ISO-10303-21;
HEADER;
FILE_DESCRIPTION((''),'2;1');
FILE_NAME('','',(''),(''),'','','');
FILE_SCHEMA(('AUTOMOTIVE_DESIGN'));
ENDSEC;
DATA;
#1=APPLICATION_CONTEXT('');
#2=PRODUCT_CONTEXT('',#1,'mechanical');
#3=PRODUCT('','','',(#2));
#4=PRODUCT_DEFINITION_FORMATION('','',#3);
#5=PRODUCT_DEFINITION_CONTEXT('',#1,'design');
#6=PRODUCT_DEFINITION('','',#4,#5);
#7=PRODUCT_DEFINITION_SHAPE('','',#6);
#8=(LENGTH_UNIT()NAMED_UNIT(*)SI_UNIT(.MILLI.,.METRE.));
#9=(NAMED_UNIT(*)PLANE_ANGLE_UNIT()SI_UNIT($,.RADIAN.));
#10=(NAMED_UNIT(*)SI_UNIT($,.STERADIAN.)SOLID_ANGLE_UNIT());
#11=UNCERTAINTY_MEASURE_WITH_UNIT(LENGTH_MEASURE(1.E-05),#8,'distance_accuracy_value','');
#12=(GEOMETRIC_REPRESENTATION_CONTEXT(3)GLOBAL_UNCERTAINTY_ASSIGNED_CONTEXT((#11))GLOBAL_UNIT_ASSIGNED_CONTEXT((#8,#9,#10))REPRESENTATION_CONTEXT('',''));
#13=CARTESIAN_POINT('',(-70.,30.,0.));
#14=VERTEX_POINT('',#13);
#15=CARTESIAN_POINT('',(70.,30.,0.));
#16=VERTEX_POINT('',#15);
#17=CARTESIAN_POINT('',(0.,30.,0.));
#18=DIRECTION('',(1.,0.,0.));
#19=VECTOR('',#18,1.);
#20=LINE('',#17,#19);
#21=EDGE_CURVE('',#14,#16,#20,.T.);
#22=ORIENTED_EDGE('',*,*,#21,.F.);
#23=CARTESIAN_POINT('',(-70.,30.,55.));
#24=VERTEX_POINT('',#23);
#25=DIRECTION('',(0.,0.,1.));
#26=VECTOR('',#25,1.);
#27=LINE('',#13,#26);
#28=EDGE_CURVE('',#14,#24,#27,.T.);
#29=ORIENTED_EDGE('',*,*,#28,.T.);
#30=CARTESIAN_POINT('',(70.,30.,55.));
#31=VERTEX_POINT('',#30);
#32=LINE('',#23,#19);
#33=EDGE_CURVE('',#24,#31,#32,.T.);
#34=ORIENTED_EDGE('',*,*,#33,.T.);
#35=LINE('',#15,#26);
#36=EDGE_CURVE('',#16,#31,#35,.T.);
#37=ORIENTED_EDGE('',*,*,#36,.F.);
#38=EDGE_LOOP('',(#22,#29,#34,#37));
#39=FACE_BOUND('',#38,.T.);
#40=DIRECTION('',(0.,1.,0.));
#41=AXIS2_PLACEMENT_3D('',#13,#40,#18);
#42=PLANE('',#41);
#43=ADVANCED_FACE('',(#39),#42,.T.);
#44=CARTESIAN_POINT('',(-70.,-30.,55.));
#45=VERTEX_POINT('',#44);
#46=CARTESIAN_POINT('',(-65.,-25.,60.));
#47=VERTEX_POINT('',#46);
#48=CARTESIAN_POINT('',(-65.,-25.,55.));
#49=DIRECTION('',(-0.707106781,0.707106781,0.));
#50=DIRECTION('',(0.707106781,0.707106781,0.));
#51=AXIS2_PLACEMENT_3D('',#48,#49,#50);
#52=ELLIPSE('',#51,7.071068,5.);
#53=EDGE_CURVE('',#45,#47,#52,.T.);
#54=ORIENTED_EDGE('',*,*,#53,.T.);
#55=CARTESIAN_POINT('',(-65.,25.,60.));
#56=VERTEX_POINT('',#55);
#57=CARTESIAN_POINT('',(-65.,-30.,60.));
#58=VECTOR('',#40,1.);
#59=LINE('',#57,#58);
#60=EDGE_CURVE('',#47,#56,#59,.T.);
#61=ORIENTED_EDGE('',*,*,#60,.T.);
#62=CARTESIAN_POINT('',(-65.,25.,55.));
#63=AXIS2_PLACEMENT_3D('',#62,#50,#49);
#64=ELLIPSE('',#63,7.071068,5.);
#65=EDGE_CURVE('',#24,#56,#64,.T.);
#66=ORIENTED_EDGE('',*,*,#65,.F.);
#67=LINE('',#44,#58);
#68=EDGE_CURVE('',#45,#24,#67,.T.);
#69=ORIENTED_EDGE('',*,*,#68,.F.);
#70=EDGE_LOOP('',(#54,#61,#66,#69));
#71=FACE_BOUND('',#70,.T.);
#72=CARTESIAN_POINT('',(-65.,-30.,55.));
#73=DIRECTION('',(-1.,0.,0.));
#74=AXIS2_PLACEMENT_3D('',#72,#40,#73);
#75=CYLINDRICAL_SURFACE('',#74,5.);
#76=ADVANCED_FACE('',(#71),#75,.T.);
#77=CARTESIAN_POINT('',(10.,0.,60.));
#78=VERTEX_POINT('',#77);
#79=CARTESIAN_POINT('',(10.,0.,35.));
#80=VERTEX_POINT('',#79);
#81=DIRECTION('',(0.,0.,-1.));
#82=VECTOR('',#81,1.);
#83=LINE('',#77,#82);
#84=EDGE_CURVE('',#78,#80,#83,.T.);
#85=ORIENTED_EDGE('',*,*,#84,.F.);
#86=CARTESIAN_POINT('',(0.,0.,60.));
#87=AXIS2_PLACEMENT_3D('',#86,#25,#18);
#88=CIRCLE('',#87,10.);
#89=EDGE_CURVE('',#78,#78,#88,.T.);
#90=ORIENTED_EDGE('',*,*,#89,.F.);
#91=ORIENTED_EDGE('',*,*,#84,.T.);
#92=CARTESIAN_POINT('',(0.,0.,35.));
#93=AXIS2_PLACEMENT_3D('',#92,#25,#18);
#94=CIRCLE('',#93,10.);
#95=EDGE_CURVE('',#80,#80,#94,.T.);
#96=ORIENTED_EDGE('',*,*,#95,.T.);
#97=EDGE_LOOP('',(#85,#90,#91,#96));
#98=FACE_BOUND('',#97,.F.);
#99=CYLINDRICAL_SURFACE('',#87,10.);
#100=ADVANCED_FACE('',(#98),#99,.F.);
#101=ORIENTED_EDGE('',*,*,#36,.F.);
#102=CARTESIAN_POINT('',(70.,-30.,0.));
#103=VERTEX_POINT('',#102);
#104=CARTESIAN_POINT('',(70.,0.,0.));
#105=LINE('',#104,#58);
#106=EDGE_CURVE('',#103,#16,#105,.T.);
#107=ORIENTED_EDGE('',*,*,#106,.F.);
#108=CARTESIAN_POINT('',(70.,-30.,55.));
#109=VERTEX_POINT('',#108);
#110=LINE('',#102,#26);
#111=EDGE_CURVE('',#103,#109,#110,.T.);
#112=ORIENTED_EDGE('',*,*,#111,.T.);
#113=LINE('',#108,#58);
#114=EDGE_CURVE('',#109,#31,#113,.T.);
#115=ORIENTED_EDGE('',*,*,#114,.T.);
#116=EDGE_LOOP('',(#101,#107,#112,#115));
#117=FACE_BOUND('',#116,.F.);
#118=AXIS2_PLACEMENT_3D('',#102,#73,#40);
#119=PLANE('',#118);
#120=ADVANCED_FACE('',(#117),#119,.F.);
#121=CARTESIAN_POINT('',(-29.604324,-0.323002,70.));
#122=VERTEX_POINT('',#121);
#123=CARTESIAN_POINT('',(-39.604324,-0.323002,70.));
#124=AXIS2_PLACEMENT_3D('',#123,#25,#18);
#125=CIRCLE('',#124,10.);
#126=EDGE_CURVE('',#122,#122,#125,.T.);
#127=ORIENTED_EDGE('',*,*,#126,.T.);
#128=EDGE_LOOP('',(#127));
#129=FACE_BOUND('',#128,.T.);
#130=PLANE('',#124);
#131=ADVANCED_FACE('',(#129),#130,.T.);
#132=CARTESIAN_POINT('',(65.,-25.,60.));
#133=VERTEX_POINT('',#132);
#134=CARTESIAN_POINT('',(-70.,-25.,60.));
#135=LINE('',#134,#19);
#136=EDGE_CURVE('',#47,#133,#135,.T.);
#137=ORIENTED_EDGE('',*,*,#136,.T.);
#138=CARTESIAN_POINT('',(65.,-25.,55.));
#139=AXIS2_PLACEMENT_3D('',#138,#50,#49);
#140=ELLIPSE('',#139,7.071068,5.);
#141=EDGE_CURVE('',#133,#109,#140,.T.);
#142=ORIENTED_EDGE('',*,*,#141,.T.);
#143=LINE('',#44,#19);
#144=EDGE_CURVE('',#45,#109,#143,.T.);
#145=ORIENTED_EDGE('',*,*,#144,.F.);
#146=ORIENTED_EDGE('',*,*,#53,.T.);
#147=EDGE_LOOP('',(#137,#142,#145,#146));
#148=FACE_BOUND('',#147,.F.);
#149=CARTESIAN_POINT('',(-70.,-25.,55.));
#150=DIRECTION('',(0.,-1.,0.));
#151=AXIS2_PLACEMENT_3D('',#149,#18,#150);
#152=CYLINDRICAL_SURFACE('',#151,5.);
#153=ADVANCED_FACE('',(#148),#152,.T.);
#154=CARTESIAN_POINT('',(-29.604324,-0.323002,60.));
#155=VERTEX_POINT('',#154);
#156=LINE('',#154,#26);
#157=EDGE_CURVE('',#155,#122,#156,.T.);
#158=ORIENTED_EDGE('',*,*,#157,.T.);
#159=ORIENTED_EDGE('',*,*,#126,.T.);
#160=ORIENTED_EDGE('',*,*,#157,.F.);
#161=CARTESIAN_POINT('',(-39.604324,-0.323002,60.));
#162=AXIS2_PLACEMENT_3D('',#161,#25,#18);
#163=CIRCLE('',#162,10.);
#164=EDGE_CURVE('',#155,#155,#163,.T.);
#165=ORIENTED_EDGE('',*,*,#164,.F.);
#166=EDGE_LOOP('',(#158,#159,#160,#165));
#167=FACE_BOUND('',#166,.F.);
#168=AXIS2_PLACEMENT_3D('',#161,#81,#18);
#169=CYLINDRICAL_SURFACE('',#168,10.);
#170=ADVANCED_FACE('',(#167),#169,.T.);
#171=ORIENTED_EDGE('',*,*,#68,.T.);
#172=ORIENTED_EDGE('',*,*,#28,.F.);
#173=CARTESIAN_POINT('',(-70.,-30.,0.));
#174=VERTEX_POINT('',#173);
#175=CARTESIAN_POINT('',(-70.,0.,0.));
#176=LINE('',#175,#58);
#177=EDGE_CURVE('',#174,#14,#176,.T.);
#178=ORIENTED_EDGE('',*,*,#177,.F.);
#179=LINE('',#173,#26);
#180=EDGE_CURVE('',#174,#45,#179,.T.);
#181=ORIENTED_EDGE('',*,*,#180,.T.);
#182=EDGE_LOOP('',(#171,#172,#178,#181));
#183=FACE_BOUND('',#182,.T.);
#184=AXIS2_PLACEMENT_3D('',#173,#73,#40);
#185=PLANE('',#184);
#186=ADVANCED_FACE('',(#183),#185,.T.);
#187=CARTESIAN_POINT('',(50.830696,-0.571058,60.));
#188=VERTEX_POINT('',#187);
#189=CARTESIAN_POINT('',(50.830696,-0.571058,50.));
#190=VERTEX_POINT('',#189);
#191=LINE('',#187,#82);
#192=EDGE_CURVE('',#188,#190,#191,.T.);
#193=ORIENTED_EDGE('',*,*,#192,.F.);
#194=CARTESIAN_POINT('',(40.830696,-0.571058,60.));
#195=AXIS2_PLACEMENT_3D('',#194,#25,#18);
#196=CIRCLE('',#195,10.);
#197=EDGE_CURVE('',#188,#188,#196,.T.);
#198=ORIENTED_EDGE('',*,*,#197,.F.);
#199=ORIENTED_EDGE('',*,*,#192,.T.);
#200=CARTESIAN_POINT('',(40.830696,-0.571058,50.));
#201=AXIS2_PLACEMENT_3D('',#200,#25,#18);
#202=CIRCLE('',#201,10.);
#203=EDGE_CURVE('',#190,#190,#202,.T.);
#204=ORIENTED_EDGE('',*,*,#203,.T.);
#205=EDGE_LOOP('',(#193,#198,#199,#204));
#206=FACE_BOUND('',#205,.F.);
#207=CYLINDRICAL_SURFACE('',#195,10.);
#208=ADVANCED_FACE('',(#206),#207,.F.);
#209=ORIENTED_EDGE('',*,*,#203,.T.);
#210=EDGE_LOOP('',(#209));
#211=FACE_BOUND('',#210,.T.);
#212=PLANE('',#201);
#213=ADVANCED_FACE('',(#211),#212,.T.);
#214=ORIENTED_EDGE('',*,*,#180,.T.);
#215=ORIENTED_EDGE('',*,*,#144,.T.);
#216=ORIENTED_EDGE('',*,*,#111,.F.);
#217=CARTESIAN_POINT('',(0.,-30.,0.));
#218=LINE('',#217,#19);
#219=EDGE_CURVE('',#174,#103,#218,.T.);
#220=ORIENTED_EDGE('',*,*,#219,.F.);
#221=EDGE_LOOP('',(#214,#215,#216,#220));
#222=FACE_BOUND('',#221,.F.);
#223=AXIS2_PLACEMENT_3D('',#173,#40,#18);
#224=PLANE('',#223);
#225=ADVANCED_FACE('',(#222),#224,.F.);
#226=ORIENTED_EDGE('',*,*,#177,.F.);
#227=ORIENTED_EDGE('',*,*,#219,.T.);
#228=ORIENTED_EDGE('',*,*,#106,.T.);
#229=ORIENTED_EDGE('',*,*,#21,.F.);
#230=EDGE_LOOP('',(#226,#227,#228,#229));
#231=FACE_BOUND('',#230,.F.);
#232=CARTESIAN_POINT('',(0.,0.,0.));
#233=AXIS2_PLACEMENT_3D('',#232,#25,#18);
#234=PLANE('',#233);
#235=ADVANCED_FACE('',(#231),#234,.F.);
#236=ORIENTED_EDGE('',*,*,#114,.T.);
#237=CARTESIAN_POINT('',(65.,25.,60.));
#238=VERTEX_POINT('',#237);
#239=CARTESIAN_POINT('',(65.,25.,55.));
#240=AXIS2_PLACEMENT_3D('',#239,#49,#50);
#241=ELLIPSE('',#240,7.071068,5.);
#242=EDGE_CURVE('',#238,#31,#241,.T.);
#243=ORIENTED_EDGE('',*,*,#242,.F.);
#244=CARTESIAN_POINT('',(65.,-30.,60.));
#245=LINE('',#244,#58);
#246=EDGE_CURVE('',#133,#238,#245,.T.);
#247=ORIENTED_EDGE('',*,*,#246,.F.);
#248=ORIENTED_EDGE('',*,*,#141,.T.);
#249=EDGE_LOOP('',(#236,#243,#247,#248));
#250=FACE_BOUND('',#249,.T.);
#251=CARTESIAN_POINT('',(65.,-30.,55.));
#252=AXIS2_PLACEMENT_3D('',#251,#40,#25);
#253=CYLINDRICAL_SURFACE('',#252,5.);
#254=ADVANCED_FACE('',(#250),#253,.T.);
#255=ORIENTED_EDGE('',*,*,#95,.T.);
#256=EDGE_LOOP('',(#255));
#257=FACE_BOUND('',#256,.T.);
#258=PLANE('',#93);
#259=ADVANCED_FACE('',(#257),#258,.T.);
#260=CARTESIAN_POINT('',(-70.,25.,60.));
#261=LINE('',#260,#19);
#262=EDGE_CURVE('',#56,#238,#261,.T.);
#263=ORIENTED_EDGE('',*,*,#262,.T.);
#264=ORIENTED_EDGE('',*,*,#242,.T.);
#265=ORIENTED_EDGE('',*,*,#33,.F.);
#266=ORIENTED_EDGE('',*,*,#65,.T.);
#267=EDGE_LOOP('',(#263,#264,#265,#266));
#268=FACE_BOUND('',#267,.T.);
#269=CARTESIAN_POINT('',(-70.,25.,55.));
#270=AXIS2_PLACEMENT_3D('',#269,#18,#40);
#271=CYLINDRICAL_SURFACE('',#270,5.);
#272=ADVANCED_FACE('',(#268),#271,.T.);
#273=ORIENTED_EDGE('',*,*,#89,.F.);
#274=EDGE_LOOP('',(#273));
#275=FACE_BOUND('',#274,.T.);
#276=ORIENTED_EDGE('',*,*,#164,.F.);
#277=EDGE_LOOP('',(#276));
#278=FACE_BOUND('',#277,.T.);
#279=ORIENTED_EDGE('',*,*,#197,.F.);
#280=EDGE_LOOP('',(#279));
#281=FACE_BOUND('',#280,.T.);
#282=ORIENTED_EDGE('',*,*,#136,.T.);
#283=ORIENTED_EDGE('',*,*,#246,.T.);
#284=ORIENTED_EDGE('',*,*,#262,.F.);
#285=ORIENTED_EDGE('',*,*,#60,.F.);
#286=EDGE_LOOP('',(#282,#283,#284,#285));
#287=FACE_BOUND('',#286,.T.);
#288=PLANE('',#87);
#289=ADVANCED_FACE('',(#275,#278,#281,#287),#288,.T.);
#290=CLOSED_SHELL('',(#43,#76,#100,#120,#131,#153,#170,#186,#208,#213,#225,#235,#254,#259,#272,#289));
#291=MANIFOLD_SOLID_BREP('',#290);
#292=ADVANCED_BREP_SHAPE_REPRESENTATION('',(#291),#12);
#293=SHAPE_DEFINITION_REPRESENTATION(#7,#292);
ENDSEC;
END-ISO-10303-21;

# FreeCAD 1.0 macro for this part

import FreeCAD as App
import Part
import Sketcher
Q = App.Units.Quantity


def edges_at(feature, points):
    """Names of the edges that pass closest to the given points."""
    edges = feature.Shape.Edges
    near = lambda p: min(range(len(edges)), key=lambda i: edges[i].distToShape(Part.Vertex(*p))[0])
    return sorted({f"Edge{near(p) + 1}" for p in points})


def add_polygon(sketch, points):
    """Adds a closed chain of lines whose ends are joined by coincident constraints."""
    first, n = sketch.GeometryCount, len(points)
    for a, b in zip(points, points[1:] + points[:1]):
        sketch.addGeometry(Part.LineSegment(App.Vector(*a, 0), App.Vector(*b, 0)), False)
    for i in range(n):
        sketch.addConstraint(Sketcher.Constraint("Coincident", first + i, 2, first + (i + 1) % n, 1))

doc = App.newDocument("Part")
params = doc.addObject("Spreadsheet::Sheet", "Params")
for row, (alias, value) in enumerate([
    ("sketch1_width", "140 mm"),
    ("sketch1_height", "60 mm"),
    ("pad1_length", "60 mm"),
    ("sketch2_diameter", "20 mm"),
    ("pad2_length", "10 mm"),
    ("sketch3_diameter", "20 mm"),
    ("pocket1_length", "25 mm"),
    ("sketch4_diameter", "20 mm"),
    ("pocket2_length", "10 mm"),
    ("fillet_radius", "5 mm"),
], start=1):
    params.set(f"A{row}", alias)
    params.set(f"B{row}", "=" + value)
    params.setAlias(f"B{row}", alias)

body = doc.addObject("PartDesign::Body", "Body")

# Sketch on XY plane
sketch1 = body.newObject("Sketcher::SketchObject", "Sketch")
sketch1.AttachmentSupport = (doc.getObject("XY_Plane"), [""])
sketch1.MapMode = "FlatFace"
add_polygon(sketch1, [(-70, 30), (-70, -30), (70, -30), (70, 30)])  # lines 0-3
sketch1.addConstraint(Sketcher.Constraint("Vertical", 0))
sketch1.addConstraint(Sketcher.Constraint("Horizontal", 1))
sketch1.addConstraint(Sketcher.Constraint("Vertical", 2))
sketch1.addConstraint(Sketcher.Constraint("Horizontal", 3))
sketch1.addConstraint(Sketcher.Constraint("Symmetric", 0, 2, 2, 2, -1, 1))
sketch1.addConstraint(Sketcher.Constraint("DistanceX", 1, 1, 1, 2, Q("140 mm")))
sketch1.addConstraint(Sketcher.Constraint("DistanceY", 0, 2, 0, 1, Q("60 mm")))
sketch1.setExpression("Constraints[9]", "Params.sketch1_width")
sketch1.setExpression("Constraints[10]", "Params.sketch1_height")
pad1 = body.newObject("PartDesign::Pad", "Pad")
pad1.Profile = sketch1
pad1.setExpression("Length", "Params.pad1_length")

# Sketch on XY plane
sketch2 = body.newObject("Sketcher::SketchObject", "Sketch001")
sketch2.AttachmentSupport = (doc.getObject("XY_Plane"), [""])
sketch2.MapMode = "FlatFace"
sketch2.AttachmentOffset = App.Placement(App.Vector(0, 0, 60), App.Rotation())
sketch2.addGeometry(Part.Circle(App.Vector(-40, 0, 0), App.Vector(0, 0, 1), 10), False)
sketch2.addConstraint(Sketcher.Constraint("Diameter", 0, Q("20 mm")))
sketch2.addConstraint(Sketcher.Constraint("DistanceX", 0, 3, -1, 1, Q("39.604324 mm")))
sketch2.addConstraint(Sketcher.Constraint("DistanceY", 0, 3, -1, 1, Q("0.323002 mm")))
sketch2.setExpression("Constraints[0]", "Params.sketch2_diameter")
pad2 = body.newObject("PartDesign::Pad", "Pad001")
pad2.Profile = sketch2
pad2.setExpression("Length", "Params.pad2_length")

# Sketch on XY plane
sketch3 = body.newObject("Sketcher::SketchObject", "Sketch002")
sketch3.AttachmentSupport = (doc.getObject("XY_Plane"), [""])
sketch3.MapMode = "FlatFace"
sketch3.AttachmentOffset = App.Placement(App.Vector(0, 0, 60), App.Rotation())
sketch3.addGeometry(Part.Circle(App.Vector(0, 0, 0), App.Vector(0, 0, 1), 10), False)
sketch3.addConstraint(Sketcher.Constraint("Coincident", 0, 3, -1, 1))
sketch3.addConstraint(Sketcher.Constraint("Diameter", 0, Q("20 mm")))
sketch3.setExpression("Constraints[1]", "Params.sketch3_diameter")
pocket1 = body.newObject("PartDesign::Pocket", "Pocket")
pocket1.Profile = sketch3
pocket1.setExpression("Length", "Params.pocket1_length")

# Sketch on XY plane
sketch4 = body.newObject("Sketcher::SketchObject", "Sketch003")
sketch4.AttachmentSupport = (doc.getObject("XY_Plane"), [""])
sketch4.MapMode = "FlatFace"
sketch4.AttachmentOffset = App.Placement(App.Vector(0, 0, 60), App.Rotation())
sketch4.addGeometry(Part.Circle(App.Vector(41, -1, 0), App.Vector(0, 0, 1), 10), False)
sketch4.addConstraint(Sketcher.Constraint("Diameter", 0, Q("20 mm")))
sketch4.addConstraint(Sketcher.Constraint("DistanceX", -1, 1, 0, 3, Q("40.830696 mm")))
sketch4.addConstraint(Sketcher.Constraint("DistanceY", 0, 3, -1, 1, Q("0.571058 mm")))
sketch4.setExpression("Constraints[0]", "Params.sketch4_diameter")
pocket2 = body.newObject("PartDesign::Pocket", "Pocket001")
pocket2.Profile = sketch4
pocket2.setExpression("Length", "Params.pocket2_length")
doc.recompute()

fillet = body.newObject("PartDesign::Fillet", "Fillet")
fillet.Base = (pocket2, edges_at(pocket2, [
    (-70, 0, 60),
    (70, 0, 60),
    (0, -30, 60),
    (0, 30, 60),
]))
fillet.setExpression("Radius", "Params.fillet_radius")

doc.recompute()
